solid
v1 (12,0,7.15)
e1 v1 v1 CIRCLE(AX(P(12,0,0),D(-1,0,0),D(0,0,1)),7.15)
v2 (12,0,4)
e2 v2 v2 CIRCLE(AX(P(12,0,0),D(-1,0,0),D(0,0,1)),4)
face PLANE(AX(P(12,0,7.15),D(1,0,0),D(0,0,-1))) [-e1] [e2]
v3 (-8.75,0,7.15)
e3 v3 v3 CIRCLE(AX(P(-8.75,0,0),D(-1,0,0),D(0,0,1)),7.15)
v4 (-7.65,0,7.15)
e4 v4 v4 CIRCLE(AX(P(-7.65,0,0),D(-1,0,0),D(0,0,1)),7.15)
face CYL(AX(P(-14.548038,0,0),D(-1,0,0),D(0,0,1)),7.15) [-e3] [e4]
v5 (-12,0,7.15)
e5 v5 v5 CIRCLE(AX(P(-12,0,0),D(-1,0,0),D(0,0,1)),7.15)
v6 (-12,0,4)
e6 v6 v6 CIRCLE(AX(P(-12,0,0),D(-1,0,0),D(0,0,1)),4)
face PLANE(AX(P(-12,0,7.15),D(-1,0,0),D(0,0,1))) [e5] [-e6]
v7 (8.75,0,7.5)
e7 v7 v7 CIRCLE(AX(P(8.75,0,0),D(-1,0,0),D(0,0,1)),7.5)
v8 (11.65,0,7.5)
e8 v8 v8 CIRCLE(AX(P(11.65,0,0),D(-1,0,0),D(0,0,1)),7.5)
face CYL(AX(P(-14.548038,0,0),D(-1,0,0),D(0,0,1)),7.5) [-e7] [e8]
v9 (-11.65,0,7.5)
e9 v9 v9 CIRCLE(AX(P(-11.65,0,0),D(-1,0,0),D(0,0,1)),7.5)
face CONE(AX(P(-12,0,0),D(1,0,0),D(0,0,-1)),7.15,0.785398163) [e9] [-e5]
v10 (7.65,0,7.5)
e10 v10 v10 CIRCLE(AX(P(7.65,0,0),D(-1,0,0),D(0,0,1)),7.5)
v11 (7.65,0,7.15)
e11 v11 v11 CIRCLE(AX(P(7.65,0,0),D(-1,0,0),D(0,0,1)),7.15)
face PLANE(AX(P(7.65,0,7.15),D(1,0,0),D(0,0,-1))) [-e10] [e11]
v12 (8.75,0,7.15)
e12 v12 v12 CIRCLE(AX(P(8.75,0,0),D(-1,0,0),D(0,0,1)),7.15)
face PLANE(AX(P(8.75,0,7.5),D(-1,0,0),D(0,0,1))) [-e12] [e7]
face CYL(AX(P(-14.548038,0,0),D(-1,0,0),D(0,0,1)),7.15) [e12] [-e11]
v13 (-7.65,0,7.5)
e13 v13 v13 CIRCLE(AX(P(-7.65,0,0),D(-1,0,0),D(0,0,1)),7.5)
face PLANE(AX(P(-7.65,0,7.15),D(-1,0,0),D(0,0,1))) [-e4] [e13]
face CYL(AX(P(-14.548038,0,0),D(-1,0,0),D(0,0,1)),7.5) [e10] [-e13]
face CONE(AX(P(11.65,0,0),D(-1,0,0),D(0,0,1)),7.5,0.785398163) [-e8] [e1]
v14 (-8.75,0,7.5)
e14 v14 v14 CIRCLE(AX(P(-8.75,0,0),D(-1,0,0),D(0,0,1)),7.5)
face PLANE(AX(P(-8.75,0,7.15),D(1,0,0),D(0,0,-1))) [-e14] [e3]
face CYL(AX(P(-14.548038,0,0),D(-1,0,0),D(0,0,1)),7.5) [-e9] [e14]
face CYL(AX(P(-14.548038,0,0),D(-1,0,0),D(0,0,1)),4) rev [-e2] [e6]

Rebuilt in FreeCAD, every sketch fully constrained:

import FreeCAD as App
import Part
import Sketcher


def add_polygon(sketch, points):
    """Adds a closed chain of lines whose ends are joined by coincident constraints."""
    first, n = sketch.GeometryCount, len(points)
    for a, b in zip(points, points[1:] + points[:1]):
        sketch.addGeometry(Part.LineSegment(App.Vector(*a, 0), App.Vector(*b, 0)), False)
    for i in range(n):
        sketch.addConstraint(Sketcher.Constraint("Coincident", first + i, 2, first + (i + 1) % n, 1))

doc = App.newDocument("Part")
body = doc.addObject("PartDesign::Body", "Body")

# Sketch on XZ plane
sketch1 = body.newObject("Sketcher::SketchObject", "Sketch")
sketch1.AttachmentSupport = (doc.getObject("XZ_Plane"), [""])
sketch1.MapMode = "FlatFace"
add_polygon(sketch1, [(-11.65, 7.5), (-8.75, 7.5), (-8.75, 7.15), (-7.65, 7.15), (-7.65, 7.5), (7.65, 7.5), (7.65, 7.15), (8.75, 7.15), (8.75, 7.5), (11.65, 7.5), (12, 7.15), (12, 4), (-12, 4), (-12, 7.15)])  # lines 0-13
sketch1.addConstraint(Sketcher.Constraint("Horizontal", 0))
sketch1.addConstraint(Sketcher.Constraint("Vertical", 1))
sketch1.addConstraint(Sketcher.Constraint("Horizontal", 2))
sketch1.addConstraint(Sketcher.Constraint("Vertical", 3))
sketch1.addConstraint(Sketcher.Constraint("Horizontal", 4))
sketch1.addConstraint(Sketcher.Constraint("Vertical", 5))
sketch1.addConstraint(Sketcher.Constraint("Horizontal", 6))
sketch1.addConstraint(Sketcher.Constraint("Vertical", 7))
sketch1.addConstraint(Sketcher.Constraint("Horizontal", 8))
sketch1.addConstraint(Sketcher.Constraint("Vertical", 10))
sketch1.addConstraint(Sketcher.Constraint("Horizontal", 11))
sketch1.addConstraint(Sketcher.Constraint("Vertical", 12))
sketch1.addConstraint(Sketcher.Constraint("Symmetric", 2, 2, 5, 2, -2))
sketch1.addConstraint(Sketcher.Constraint("Symmetric", 0, 2, 7, 2, -2))
sketch1.addConstraint(Sketcher.Constraint("Symmetric", 9, 2, 12, 2, -2))
sketch1.addConstraint(Sketcher.Constraint("Perpendicular", 9, 13))
sketch1.addConstraint(Sketcher.Constraint("Horizontal", 0, 2, 3, 2))
sketch1.addConstraint(Sketcher.Constraint("Horizontal", 6, 2, 9, 2))
sketch1.addConstraint(Sketcher.Constraint("Equal", 0, 8))
sketch1.addConstraint(Sketcher.Constraint("DistanceX", 11, 2, 11, 1, 24.0))
sketch1.addConstraint(Sketcher.Constraint("DistanceX", 0, 1, 0, 2, 2.9))
sketch1.addConstraint(Sketcher.Constraint("DistanceX", 2, 1, 2, 2, 1.1))
sketch1.addConstraint(Sketcher.Constraint("DistanceX", 4, 1, 4, 2, 15.3))
sketch1.addConstraint(Sketcher.Constraint("DistanceY", -1, 1, 10, 2, 4.0))
sketch1.addConstraint(Sketcher.Constraint("DistanceY", 10, 2, 10, 1, 3.15))
revolution = body.newObject("PartDesign::Revolution", "Revolution")
revolution.Profile = sketch1
revolution.ReferenceAxis = (sketch1, ["H_Axis"])
revolution.Angle = 360

doc.recompute()
